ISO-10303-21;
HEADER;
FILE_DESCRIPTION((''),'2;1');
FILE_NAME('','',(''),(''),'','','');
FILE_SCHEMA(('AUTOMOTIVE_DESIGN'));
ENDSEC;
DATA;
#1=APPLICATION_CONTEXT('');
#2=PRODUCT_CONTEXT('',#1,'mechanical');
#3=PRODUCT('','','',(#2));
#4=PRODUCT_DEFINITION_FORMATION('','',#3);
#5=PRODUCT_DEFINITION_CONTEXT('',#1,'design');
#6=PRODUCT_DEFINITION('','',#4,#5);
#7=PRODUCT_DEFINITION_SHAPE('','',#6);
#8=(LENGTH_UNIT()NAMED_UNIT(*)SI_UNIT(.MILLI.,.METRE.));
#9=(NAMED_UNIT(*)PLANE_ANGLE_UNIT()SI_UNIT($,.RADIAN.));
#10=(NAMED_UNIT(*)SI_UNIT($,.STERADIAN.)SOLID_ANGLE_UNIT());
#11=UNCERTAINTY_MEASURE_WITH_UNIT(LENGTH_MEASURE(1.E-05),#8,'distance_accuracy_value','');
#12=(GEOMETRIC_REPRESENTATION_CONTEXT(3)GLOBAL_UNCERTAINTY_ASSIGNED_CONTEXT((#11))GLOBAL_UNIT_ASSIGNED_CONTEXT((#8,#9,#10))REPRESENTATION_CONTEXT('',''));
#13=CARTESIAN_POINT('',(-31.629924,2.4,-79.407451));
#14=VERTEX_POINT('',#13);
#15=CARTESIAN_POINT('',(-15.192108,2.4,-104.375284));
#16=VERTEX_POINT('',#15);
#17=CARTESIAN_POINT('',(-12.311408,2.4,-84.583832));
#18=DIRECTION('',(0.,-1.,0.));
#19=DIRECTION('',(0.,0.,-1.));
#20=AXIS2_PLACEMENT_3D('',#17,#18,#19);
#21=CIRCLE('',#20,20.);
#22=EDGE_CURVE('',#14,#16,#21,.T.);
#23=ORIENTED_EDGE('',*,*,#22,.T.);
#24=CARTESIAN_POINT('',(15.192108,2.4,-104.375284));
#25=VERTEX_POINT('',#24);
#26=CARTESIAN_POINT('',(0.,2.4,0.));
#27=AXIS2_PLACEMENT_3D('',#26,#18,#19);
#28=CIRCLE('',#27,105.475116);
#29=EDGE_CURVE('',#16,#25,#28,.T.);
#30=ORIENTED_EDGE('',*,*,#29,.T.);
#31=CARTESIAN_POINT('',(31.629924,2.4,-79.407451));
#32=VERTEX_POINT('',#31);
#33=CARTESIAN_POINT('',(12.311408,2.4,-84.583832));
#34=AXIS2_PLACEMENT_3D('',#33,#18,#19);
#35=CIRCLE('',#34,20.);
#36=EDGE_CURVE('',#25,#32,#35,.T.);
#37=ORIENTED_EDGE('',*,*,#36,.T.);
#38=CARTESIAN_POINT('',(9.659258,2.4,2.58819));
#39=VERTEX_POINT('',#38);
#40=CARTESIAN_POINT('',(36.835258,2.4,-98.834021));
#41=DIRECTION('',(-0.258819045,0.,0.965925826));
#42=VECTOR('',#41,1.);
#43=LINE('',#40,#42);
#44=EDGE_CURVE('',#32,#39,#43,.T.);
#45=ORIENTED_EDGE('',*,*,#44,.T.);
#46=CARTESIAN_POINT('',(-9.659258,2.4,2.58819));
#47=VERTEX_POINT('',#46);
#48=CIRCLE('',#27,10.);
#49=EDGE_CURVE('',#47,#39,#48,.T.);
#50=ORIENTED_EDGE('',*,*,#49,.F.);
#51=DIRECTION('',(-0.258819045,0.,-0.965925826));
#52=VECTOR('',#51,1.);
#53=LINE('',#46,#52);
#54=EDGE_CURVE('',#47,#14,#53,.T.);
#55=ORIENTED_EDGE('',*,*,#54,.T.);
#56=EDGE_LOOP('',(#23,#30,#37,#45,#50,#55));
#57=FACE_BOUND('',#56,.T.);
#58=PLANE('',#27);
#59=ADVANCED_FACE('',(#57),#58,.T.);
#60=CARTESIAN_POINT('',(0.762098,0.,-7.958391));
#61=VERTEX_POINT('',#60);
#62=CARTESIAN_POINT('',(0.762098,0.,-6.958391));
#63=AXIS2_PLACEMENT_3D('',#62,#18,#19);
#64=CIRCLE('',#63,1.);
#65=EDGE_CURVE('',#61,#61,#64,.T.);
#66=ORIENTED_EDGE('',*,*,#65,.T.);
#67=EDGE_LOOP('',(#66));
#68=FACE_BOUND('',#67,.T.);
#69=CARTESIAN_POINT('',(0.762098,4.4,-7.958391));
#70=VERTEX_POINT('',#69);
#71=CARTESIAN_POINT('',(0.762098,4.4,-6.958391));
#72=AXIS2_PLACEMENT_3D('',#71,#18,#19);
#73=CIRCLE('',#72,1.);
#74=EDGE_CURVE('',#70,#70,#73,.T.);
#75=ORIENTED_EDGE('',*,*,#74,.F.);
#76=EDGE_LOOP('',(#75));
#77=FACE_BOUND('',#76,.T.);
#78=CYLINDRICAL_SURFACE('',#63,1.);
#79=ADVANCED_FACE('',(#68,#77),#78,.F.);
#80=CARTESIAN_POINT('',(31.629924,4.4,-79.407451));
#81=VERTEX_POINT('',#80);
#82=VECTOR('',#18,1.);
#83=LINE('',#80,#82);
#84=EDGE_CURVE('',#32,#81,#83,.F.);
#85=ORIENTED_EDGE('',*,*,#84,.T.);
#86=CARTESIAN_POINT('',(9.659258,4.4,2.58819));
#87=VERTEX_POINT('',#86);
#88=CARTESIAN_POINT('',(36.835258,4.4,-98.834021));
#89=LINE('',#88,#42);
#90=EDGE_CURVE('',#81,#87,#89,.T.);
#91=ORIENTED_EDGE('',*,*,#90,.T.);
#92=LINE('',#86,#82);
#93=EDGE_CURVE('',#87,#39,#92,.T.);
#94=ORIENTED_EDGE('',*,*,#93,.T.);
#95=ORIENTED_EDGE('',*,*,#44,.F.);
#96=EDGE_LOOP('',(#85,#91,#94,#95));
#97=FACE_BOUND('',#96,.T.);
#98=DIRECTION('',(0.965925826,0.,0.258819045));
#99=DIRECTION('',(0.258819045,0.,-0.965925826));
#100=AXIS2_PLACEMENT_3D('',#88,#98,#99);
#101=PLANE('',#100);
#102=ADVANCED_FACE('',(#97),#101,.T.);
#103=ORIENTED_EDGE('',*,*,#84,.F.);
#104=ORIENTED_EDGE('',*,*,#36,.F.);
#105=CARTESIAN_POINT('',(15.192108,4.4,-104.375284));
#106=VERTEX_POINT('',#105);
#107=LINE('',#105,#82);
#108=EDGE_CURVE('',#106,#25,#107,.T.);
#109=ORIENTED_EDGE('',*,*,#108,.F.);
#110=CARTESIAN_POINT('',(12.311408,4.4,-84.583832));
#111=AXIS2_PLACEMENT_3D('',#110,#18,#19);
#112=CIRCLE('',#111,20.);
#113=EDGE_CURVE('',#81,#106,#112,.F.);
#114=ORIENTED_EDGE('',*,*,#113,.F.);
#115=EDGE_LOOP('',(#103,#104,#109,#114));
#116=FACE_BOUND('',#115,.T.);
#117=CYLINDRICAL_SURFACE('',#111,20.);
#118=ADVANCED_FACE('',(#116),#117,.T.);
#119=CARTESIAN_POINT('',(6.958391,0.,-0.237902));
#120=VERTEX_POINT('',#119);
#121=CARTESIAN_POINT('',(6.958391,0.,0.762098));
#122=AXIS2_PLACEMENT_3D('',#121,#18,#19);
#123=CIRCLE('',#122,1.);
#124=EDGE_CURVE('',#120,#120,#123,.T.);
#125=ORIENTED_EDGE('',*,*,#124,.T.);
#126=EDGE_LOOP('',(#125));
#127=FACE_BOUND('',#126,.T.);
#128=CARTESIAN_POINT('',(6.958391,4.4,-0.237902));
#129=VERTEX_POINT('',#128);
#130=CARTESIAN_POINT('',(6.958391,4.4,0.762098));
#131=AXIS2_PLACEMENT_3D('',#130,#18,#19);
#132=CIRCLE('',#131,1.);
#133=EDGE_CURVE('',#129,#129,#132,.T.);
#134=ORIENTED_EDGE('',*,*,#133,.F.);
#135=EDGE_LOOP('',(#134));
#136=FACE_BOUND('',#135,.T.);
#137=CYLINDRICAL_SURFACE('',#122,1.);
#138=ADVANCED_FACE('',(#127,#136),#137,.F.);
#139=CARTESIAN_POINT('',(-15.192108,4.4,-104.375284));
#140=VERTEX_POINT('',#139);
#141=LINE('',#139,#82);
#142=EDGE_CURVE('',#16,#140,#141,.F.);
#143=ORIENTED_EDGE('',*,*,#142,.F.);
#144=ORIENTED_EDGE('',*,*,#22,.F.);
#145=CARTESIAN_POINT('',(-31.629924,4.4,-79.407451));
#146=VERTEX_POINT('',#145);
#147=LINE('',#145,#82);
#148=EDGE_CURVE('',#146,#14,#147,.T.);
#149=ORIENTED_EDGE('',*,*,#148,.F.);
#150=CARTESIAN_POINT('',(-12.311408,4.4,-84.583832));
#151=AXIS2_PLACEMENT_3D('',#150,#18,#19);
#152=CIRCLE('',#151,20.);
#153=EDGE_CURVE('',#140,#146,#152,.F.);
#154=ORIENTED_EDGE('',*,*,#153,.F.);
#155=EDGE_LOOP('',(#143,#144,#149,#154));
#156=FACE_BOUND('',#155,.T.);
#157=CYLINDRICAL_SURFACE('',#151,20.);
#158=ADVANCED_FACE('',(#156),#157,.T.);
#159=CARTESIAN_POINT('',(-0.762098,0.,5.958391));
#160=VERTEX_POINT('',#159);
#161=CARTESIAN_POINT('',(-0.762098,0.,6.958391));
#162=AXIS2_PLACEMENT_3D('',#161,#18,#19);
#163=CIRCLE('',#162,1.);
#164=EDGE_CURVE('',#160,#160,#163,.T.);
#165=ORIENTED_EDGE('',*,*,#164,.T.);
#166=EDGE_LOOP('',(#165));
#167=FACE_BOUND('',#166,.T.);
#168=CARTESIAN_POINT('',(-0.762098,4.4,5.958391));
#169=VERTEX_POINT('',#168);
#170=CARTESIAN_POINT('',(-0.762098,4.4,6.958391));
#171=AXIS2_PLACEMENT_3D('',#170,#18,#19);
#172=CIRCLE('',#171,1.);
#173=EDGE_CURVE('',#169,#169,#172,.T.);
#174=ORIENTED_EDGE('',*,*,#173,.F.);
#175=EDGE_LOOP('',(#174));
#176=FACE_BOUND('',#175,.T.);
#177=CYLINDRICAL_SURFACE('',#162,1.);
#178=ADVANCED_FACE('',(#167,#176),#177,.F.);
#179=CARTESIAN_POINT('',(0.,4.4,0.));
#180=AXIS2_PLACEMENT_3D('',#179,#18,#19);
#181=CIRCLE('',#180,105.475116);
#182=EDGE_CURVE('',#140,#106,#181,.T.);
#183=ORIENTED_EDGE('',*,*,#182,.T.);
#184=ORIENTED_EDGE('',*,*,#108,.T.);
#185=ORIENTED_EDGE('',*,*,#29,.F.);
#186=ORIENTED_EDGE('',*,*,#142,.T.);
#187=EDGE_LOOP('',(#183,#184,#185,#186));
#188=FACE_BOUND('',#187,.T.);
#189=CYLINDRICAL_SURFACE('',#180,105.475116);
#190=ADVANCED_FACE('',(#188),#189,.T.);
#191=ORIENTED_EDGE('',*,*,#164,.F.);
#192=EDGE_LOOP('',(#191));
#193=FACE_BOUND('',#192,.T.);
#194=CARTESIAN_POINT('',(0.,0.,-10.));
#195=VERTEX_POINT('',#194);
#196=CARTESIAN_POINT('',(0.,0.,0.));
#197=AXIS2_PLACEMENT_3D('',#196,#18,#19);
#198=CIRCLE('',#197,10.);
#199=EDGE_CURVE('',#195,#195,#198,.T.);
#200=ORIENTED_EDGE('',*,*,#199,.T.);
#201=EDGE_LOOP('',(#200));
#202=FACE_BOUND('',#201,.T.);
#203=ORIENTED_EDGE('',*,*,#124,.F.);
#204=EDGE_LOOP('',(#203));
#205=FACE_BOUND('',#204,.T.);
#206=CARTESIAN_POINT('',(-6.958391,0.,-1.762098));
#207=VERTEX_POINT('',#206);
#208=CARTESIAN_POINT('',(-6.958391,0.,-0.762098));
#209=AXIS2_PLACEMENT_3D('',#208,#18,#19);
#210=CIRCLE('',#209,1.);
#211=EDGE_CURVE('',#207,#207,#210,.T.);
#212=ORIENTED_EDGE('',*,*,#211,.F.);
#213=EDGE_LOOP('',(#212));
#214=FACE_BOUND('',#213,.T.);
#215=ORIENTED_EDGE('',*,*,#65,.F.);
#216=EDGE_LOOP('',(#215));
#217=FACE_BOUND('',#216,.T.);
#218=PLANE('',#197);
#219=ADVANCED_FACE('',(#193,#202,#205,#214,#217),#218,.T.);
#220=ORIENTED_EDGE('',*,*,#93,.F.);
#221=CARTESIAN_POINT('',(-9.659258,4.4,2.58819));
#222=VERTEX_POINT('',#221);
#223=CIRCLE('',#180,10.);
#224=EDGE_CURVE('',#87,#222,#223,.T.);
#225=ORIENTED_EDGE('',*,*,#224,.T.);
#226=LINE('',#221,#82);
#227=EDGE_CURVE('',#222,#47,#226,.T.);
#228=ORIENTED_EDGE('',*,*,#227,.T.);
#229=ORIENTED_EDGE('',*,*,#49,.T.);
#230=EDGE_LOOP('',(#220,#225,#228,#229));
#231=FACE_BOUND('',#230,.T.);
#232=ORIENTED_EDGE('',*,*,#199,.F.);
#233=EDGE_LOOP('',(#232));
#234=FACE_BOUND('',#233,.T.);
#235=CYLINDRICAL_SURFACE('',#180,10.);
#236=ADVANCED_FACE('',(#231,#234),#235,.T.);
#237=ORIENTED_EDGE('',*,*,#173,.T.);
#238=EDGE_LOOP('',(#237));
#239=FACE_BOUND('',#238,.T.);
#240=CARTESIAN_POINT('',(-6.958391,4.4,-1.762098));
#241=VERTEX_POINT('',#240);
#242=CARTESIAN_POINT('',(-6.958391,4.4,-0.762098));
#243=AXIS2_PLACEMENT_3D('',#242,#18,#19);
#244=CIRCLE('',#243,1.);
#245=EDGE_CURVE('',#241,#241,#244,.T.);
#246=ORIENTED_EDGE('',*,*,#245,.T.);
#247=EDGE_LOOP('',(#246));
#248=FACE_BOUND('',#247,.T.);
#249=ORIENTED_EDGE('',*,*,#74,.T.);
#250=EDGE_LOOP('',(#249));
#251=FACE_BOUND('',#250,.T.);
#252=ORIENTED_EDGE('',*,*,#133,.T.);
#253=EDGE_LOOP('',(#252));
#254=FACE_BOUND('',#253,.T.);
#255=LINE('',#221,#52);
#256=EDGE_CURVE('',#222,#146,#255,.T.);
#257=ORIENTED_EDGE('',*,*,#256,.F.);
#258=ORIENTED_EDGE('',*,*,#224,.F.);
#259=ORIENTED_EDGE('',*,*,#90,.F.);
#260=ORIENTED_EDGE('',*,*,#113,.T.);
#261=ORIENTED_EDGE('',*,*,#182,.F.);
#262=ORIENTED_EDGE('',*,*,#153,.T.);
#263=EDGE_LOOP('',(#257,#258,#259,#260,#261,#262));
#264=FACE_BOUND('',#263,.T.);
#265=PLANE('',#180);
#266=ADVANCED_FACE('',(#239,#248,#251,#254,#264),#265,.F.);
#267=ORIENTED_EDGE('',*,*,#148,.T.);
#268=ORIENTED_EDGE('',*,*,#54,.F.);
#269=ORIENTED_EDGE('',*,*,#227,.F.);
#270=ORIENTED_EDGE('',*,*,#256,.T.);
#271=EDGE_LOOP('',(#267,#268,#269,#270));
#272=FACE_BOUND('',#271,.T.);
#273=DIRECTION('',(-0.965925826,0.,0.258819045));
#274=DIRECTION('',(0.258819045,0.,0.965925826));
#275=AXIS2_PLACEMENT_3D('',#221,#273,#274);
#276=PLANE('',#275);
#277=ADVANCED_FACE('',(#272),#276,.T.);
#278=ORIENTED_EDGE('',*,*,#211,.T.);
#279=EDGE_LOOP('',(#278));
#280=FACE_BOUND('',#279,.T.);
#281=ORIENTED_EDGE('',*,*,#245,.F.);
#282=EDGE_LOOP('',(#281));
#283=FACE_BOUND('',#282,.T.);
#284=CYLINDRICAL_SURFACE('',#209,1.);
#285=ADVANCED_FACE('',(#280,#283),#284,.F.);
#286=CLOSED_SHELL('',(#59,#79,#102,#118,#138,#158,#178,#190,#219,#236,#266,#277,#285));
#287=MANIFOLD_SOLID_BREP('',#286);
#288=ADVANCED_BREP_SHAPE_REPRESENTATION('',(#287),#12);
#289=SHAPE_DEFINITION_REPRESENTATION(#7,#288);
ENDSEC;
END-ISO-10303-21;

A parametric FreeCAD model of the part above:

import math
import FreeCAD as App
import Part
import Sketcher

V = App.Vector
Q = App.Units.Quantity


def edges_at(feature, points):
    """Names of the edges that pass closest to the given points."""
    edges = feature.Shape.Edges
    near = lambda p: min(range(len(edges)), key=lambda i: edges[i].distToShape(Part.Vertex(*p))[0])
    return sorted({f"Edge{near(p) + 1}" for p in points})

doc = App.newDocument("Part")
body = doc.addObject("PartDesign::Body", "Body")

sketch1 = body.newObject("Sketcher::SketchObject", "Sketch")
sketch1.AttachmentSupport = (doc.getObject("XZ_Plane"), [""])
sketch1.MapMode = "FlatFace"
sketch1.AttachmentOffset = App.Placement(V(0, 0, -2.4), App.Rotation())
sketch1.addGeometry(Part.LineSegment(V(36.835258, -98.834021, 0), V(9.659258, 2.58819, 0)), False)
sketch1.addGeometry(Part.ArcOfCircle(Part.Circle(V(0, 0, 0), V(0, 0, 1), 10), math.radians(15), math.radians(165)), False)
sketch1.addGeometry(Part.LineSegment(V(-9.659258, 2.58819, 0), V(-36.835258, -98.834021, 0)), False)
sketch1.addGeometry(Part.ArcOfCircle(Part.Circle(V(0, 0, 0), V(0, 0, 1), 105.475116), math.radians(-110.440332), math.radians(-69.559668)), False)
sketch1.addConstraint(Sketcher.Constraint("Tangent", 0, 2, 1, 1))
sketch1.addConstraint(Sketcher.Constraint("Tangent", 1, 2, 2, 1))
sketch1.addConstraint(Sketcher.Constraint("Coincident", 2, 2, 3, 1))
sketch1.addConstraint(Sketcher.Constraint("Coincident", 3, 2, 0, 1))
sketch1.addConstraint(Sketcher.Constraint("Coincident", 1, 3, -1, 1))
sketch1.addConstraint(Sketcher.Constraint("Coincident", 3, 3, -1, 1))
sketch1.addConstraint(Sketcher.Constraint("Horizontal", 0, 2, 1, 2))
sketch1.addConstraint(Sketcher.Constraint("Radius", 1, 10.0))
sketch1.addConstraint(Sketcher.Constraint("Angle", 0, Q("105 deg")))
sketch1.addConstraint(Sketcher.Constraint("Distance", 0, 105.0))
pad1 = body.newObject("PartDesign::Pad", "Pad")
pad1.Profile = sketch1
pad1.Length = 2
pad1.Reversed = True

sketch2 = body.newObject("Sketcher::SketchObject", "Sketch001")
sketch2.AttachmentSupport = (doc.getObject("XZ_Plane"), [""])
sketch2.MapMode = "FlatFace"
sketch2.addGeometry(Part.Circle(V(0, 0, 0), V(0, 0, 1), 10), False)
sketch2.addConstraint(Sketcher.Constraint("Coincident", 0, 3, -1, 1))
sketch2.addConstraint(Sketcher.Constraint("Diameter", 0, 20.0))
pad2 = body.newObject("PartDesign::Pad", "Pad001")
pad2.Profile = sketch2
pad2.Length = 2.4
pad2.Reversed = True

sketch3 = body.newObject("Sketcher::SketchObject", "Sketch002")
sketch3.AttachmentSupport = (doc.getObject("XZ_Plane"), [""])
sketch3.MapMode = "FlatFace"
sketch3.addGeometry(Part.Circle(V(6.958391, 0.762098, 0), V(0, 0, 1), 1), False)
sketch3.addGeometry(Part.Circle(V(0.762098, -6.958391, 0), V(0, 0, 1), 1), False)
sketch3.addGeometry(Part.Circle(V(-0.762098, 6.958391, 0), V(0, 0, 1), 1), False)
sketch3.addGeometry(Part.Circle(V(-6.958391, -0.762098, 0), V(0, 0, 1), 1), False)
sketch3.addConstraint(Sketcher.Constraint("Equal", 0, 1))
sketch3.addConstraint(Sketcher.Constraint("Equal", 1, 2))
sketch3.addConstraint(Sketcher.Constraint("Equal", 2, 3))
sketch3.addConstraint(Sketcher.Constraint("Symmetric", 1, 3, 2, 3, -1, 1))
sketch3.addConstraint(Sketcher.Constraint("Symmetric", 0, 3, 3, 3, -1, 1))
sketch3.addConstraint(Sketcher.Constraint("Diameter", 0, 2.0))
sketch3.addConstraint(Sketcher.Constraint("DistanceX", -1, 1, 0, 3, 6.958391))
sketch3.addConstraint(Sketcher.Constraint("DistanceY", 1, 3, -1, 1, 6.958391))
sketch3.addConstraint(Sketcher.Constraint("DistanceY", 1, 3, 0, 3, 7.720489))
sketch3.addConstraint(Sketcher.Constraint("DistanceX", 2, 3, 0, 3, 7.720489))
doc.recompute()
hole = body.newObject("PartDesign::Hole", "Hole")
hole.Profile = sketch3
hole.ThreadType = "None"
hole.Diameter = 2
hole.DepthType = "ThroughAll"
doc.recompute()

fillet = body.newObject("PartDesign::Fillet", "Fillet")
fillet.Base = (hole, edges_at(hole, [(-36.835, 3.4, -98.834), (36.835, 3.4, -98.834)]))
fillet.Radius = 20

doc.recompute()
